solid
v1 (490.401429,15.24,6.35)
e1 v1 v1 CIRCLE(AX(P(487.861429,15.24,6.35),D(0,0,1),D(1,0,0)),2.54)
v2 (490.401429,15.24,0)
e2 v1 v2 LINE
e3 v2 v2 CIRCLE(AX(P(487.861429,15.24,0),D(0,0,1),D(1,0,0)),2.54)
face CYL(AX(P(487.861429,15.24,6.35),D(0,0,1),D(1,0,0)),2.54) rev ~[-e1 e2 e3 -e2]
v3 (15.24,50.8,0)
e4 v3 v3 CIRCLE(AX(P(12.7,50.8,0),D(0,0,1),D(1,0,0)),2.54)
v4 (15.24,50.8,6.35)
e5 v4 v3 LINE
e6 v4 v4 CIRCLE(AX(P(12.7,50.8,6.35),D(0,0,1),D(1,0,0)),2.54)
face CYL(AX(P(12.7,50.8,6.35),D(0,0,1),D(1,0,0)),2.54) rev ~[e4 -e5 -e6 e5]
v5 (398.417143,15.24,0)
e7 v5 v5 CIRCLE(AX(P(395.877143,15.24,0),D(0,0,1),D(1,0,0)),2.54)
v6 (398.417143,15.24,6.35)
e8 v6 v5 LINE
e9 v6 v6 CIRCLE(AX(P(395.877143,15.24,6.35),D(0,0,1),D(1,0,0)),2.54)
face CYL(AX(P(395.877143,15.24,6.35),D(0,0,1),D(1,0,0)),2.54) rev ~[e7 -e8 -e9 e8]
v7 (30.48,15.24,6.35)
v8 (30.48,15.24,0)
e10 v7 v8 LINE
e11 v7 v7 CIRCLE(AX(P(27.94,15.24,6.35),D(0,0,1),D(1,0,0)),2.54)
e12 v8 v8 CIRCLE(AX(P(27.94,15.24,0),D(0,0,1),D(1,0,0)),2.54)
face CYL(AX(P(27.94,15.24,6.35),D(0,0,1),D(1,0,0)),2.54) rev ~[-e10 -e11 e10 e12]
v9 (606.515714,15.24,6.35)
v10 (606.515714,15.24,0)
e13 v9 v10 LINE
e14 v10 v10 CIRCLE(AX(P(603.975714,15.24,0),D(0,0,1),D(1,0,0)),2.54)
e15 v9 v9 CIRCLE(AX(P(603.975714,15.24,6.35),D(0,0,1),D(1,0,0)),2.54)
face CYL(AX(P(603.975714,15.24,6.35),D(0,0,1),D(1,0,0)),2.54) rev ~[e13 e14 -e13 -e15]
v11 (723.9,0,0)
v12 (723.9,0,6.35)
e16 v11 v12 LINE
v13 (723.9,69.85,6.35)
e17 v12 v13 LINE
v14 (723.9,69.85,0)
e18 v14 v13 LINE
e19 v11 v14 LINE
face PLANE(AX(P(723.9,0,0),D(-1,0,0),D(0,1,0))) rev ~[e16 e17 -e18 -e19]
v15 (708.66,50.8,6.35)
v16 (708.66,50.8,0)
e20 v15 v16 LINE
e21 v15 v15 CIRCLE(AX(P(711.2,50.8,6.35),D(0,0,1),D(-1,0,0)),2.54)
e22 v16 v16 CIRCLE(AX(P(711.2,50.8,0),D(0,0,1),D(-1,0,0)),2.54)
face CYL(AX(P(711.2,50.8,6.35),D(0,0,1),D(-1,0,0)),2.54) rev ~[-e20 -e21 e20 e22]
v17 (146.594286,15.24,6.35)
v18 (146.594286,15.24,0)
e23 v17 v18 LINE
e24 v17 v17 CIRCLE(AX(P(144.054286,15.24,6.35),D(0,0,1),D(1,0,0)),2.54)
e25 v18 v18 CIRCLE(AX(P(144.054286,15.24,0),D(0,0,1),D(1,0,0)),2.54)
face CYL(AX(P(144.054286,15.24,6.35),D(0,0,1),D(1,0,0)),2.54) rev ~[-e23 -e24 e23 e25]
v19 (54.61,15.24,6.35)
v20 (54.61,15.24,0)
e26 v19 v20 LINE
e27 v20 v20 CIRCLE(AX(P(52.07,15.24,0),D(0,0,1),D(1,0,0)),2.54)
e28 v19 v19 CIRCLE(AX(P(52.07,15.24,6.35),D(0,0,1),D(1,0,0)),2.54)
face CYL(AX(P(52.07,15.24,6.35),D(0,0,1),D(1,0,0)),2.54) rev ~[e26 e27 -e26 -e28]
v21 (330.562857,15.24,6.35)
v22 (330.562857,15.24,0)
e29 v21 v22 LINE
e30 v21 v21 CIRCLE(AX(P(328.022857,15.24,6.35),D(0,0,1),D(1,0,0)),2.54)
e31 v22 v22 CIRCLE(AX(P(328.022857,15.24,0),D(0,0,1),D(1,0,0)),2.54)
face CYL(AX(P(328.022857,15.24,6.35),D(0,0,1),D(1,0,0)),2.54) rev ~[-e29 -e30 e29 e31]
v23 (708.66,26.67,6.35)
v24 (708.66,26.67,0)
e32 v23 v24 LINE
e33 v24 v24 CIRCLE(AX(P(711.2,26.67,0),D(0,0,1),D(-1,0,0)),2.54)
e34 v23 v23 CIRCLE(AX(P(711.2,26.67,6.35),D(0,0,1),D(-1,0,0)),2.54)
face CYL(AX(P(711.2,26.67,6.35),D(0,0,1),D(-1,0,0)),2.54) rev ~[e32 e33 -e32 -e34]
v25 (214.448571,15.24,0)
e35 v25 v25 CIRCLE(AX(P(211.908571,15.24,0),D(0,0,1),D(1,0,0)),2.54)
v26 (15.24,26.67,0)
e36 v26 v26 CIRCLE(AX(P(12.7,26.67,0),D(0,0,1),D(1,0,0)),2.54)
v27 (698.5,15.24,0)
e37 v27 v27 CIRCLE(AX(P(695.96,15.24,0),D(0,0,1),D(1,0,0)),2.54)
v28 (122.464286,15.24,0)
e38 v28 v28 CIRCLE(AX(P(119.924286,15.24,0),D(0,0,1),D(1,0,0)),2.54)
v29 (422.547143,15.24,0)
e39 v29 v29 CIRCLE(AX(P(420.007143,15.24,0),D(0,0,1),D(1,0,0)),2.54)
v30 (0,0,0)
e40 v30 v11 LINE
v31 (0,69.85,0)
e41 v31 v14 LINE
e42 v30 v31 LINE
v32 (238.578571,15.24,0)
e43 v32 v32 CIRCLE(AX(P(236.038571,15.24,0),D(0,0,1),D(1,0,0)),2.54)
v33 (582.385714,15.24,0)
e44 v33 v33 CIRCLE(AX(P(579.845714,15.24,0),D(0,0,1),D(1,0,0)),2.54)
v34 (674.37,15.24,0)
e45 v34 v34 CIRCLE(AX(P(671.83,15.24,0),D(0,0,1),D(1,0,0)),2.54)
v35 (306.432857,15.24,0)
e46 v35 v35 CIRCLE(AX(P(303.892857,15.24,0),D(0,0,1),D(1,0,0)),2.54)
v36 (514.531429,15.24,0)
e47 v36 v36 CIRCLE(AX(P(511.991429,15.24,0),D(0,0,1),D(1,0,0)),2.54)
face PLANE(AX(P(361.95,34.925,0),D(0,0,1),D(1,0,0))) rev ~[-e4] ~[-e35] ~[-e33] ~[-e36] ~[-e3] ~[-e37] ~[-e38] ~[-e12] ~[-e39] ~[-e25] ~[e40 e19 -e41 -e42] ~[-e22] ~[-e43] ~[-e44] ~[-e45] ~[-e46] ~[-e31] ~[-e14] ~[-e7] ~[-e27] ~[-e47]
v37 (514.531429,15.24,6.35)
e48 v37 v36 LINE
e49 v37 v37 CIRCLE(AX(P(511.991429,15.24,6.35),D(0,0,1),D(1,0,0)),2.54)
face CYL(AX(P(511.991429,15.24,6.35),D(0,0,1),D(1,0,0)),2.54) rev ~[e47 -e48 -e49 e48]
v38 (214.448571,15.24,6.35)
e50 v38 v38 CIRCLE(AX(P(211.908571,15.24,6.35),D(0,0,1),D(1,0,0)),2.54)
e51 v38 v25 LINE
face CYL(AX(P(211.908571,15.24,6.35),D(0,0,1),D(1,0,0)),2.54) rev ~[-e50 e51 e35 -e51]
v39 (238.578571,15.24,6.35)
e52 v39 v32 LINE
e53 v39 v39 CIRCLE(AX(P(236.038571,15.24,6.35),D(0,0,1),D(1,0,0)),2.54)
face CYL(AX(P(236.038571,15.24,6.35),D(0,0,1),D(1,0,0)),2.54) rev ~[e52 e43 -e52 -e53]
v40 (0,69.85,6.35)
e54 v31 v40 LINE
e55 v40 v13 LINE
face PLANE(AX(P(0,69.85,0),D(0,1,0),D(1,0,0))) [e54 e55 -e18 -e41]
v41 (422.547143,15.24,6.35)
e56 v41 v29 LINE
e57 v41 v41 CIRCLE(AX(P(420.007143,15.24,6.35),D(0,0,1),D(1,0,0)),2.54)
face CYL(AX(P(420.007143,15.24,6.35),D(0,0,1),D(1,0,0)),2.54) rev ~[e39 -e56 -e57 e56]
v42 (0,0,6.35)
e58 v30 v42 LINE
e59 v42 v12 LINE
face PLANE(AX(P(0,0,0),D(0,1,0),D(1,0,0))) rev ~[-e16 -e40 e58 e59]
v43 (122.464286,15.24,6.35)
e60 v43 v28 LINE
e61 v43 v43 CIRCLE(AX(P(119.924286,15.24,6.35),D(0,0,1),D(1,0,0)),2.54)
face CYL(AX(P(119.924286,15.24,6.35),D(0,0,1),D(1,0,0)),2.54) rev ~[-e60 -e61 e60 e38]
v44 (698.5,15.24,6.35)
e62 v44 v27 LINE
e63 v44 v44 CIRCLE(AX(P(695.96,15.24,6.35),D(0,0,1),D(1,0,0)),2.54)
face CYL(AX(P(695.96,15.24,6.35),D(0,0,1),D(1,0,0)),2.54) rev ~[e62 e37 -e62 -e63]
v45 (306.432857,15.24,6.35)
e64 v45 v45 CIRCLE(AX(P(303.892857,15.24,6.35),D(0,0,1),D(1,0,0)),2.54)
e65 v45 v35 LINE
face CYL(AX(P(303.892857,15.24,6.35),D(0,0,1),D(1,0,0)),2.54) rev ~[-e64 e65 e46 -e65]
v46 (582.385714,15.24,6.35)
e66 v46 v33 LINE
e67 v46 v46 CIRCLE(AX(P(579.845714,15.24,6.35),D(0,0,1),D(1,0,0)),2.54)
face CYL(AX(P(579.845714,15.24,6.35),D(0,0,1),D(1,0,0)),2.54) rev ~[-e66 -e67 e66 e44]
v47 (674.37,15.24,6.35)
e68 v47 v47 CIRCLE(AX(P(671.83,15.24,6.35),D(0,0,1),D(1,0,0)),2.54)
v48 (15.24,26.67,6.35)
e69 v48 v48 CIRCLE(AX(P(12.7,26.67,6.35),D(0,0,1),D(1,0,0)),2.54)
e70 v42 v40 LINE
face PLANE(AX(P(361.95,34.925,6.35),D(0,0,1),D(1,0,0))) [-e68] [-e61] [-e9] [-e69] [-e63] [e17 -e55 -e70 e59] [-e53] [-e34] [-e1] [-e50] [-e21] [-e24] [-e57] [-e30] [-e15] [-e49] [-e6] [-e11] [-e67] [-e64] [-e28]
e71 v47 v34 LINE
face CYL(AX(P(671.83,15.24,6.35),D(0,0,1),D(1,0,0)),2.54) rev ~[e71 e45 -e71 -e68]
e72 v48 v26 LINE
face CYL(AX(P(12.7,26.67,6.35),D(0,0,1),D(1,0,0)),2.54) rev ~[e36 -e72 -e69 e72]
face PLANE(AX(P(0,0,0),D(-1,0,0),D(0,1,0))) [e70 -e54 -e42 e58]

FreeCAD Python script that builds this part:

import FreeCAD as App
import Part
import Sketcher

V = App.Vector
Q = App.Units.Quantity

doc = App.newDocument("Part")
params = doc.addObject("Spreadsheet::Sheet", "Params")
for row, (alias, value) in enumerate([
    ("sketch1_width", "28.5 in"),
    ("sketch1_height", "2.75 in"),
    ("pad1_length", "0.25 in"),
    ("sketch2_diameter", "0.2 in"),
    ("pocket1_length", "0.25 in"),
    ("sketch3_diameter", "0.2 in"),
    ("pocket2_length", "0.25 in"),
    ("linearpattern_pitch", "91.984286 mm"),
], start=1):
    params.set(f"A{row}", alias)
    params.set(f"B{row}", "=" + value)
    params.setAlias(f"B{row}", alias)

body = doc.addObject("PartDesign::Body", "Body")

sketch1 = body.newObject("Sketcher::SketchObject", "Sketch")
sketch1.AttachmentSupport = (doc.getObject("XY_Plane"), [""])
sketch1.MapMode = "FlatFace"
sketch1.addGeometry([
    Part.LineSegment(V(0, 70, 0), V(0, 0, 0)),
    Part.LineSegment(V(0, 0, 0), V(724, 0, 0)),
    Part.LineSegment(V(724, 0, 0), V(724, 70, 0)),
    Part.LineSegment(V(724, 70, 0), V(0, 70, 0)),
], False)
sketch1.addConstraint([
    Sketcher.Constraint("Coincident", 0, 2, 1, 1),
    Sketcher.Constraint("Coincident", 1, 2, 2, 1),
    Sketcher.Constraint("Coincident", 2, 2, 3, 1),
    Sketcher.Constraint("Coincident", 3, 2, 0, 1),
    Sketcher.Constraint("Vertical", 0),
    Sketcher.Constraint("Horizontal", 1),
    Sketcher.Constraint("Vertical", 2),
    Sketcher.Constraint("Horizontal", 3),
    Sketcher.Constraint("Coincident", 0, 2, -1, 1),
    Sketcher.Constraint("DistanceX", 1, 1, 1, 2, Q("28.5 in")),
    Sketcher.Constraint("DistanceY", 0, 2, 0, 1, Q("2.75 in")),
])
sketch1.setExpression("Constraints[9]", "Params.sketch1_width")
sketch1.setExpression("Constraints[10]", "Params.sketch1_height")
pad1 = body.newObject("PartDesign::Pad", "Pad")
pad1.Profile = sketch1
pad1.setExpression("Length", "Params.pad1_length")

sketch2 = body.newObject("Sketcher::SketchObject", "Sketch001")
sketch2.AttachmentSupport = (doc.getObject("XY_Plane"), [""])
sketch2.MapMode = "FlatFace"
sketch2.AttachmentOffset = App.Placement(V(0, 0, 0.25 * 25.4), App.Rotation())
sketch2.addGeometry([
    Part.Circle(V(27.9, 15.2, 0), V(0, 0, 1), 2.5),
    Part.Circle(V(52.1, 15.2, 0), V(0, 0, 1), 2.5),
], False)
sketch2.addConstraint([
    Sketcher.Constraint("Equal", 0, 1),
    Sketcher.Constraint("Horizontal", 0, 3, 1, 3),
    Sketcher.Constraint("Diameter", 0, Q("0.2 in")),
    Sketcher.Constraint("DistanceX", -1, 1, 0, 3, Q("1.1 in")),
    Sketcher.Constraint("DistanceY", -1, 1, 0, 3, Q("0.6 in")),
    Sketcher.Constraint("DistanceX", -1, 1, 1, 3, Q("2.05 in")),
])
sketch2.setExpression("Constraints[2]", "Params.sketch2_diameter")
pocket1 = body.newObject("PartDesign::Pocket", "Pocket")
pocket1.Profile = sketch2
pocket1.setExpression("Length", "Params.pocket1_length")

sketch3 = body.newObject("Sketcher::SketchObject", "Sketch002")
sketch3.AttachmentSupport = (doc.getObject("XY_Plane"), [""])
sketch3.MapMode = "FlatFace"
sketch3.AttachmentOffset = App.Placement(V(0, 0, 0.25 * 25.4), App.Rotation())
sketch3.addGeometry([
    Part.Circle(V(12.7, 26.7, 0), V(0, 0, 1), 2.5),
    Part.Circle(V(12.7, 50.8, 0), V(0, 0, 1), 2.5),
    Part.Circle(V(711.2, 26.7, 0), V(0, 0, 1), 2.5),
    Part.Circle(V(711.2, 50.8, 0), V(0, 0, 1), 2.5),
], False)
sketch3.addConstraint([
    Sketcher.Constraint("Equal", 0, 1),
    Sketcher.Constraint("Equal", 1, 2),
    Sketcher.Constraint("Equal", 2, 3),
    Sketcher.Constraint("Horizontal", 0, 3, 2, 3),
    Sketcher.Constraint("Horizontal", 1, 3, 3, 3),
    Sketcher.Constraint("Vertical", 0, 3, 1, 3),
    Sketcher.Constraint("Vertical", 2, 3, 3, 3),
    Sketcher.Constraint("Diameter", 0, Q("0.2 in")),
    Sketcher.Constraint("DistanceY", -1, 1, 1, 3, Q("2 in")),
    Sketcher.Constraint("DistanceX", -1, 1, 2, 3, Q("28 in")),
    Sketcher.Constraint("DistanceX", -1, 1, 0, 3, Q("0.5 in")),
    Sketcher.Constraint("DistanceY", -1, 1, 0, 3, Q("1.05 in")),
])
sketch3.setExpression("Constraints[7]", "Params.sketch3_diameter")
pocket2 = body.newObject("PartDesign::Pocket", "Pocket001")
pocket2.Profile = sketch3
pocket2.setExpression("Length", "Params.pocket2_length")
doc.recompute()

linearpattern = body.newObject("PartDesign::LinearPattern", "LinearPattern")
linearpattern.Originals = [pocket1]
linearpattern.Direction = (doc.getObject("X_Axis"), [""])
linearpattern.Mode = "offset"
linearpattern.setExpression("Offset", "Params.linearpattern_pitch")
linearpattern.Occurrences = 8
body.Tip = linearpattern

doc.recompute()
